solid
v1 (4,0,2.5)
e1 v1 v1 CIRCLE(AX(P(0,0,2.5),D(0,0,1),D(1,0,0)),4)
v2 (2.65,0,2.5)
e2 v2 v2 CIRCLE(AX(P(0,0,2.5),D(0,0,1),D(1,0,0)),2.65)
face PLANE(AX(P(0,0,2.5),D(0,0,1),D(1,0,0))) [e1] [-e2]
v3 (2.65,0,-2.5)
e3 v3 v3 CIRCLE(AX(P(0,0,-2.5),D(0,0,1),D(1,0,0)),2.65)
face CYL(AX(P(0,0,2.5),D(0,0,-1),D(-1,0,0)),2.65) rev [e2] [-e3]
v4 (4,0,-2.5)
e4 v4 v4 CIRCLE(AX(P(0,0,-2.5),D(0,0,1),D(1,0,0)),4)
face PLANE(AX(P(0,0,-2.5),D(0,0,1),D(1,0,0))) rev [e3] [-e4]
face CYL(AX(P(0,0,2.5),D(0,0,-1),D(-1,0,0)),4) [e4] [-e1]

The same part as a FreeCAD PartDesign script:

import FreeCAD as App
import Part
import Sketcher
Q = App.Units.Quantity

doc = App.newDocument("Part")
body = doc.addObject("PartDesign::Body", "Body")

# Sketch on XY plane
sketch1 = body.newObject("Sketcher::SketchObject", "Sketch")
sketch1.AttachmentSupport = (doc.getObject("XY_Plane"), [""])
sketch1.MapMode = "FlatFace"
sketch1.addGeometry([
    Part.Circle(App.Vector(0, 0, 0), App.Vector(0, 0, 1), 4),
    Part.Circle(App.Vector(0, 0, 0), App.Vector(0, 0, 1), 2.6),
], False)
sketch1.addConstraint([
    Sketcher.Constraint("Coincident", 0, 3, -1, 1),
    Sketcher.Constraint("Coincident", 1, 3, -1, 1),
    Sketcher.Constraint("Diameter", 0, Q("8 mm")),
    Sketcher.Constraint("Diameter", 1, Q("5.3 mm")),
])
pad1 = body.newObject("PartDesign::Pad", "Pad")
pad1.Profile = sketch1
pad1.Type = "TwoLengths"
pad1.Length = 2.5
pad1.Length2 = 2.5

doc.recompute()
